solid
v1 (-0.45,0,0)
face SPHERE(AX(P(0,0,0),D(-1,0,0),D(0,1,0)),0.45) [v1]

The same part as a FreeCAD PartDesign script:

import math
import FreeCAD as App
import Part
import Sketcher

doc = App.newDocument("Part")
body = doc.addObject("PartDesign::Body", "Body")

sketch1 = body.newObject("Sketcher::SketchObject", "Sketch")
sketch1.AttachmentSupport = (doc.getObject("XY_Plane"), [""])
sketch1.MapMode = "FlatFace"
sketch1.addGeometry([
    Part.LineSegment(App.Vector(-0.45, 0, 0), App.Vector(0.45, 0, 0)),
    Part.ArcOfCircle(Part.Circle(App.Vector(0, 0, 0), App.Vector(0, 0, 1), 0.45), math.radians(0), math.radians(180)),
], False)
sketch1.addConstraint([
    Sketcher.Constraint("Coincident", 0, 1, 1, 2),
    Sketcher.Constraint("Coincident", 1, 1, 0, 2),
    Sketcher.Constraint("Horizontal", 0),
    Sketcher.Constraint("Coincident", 1, 3, -1, 1),
    Sketcher.Constraint("PointOnObject", 0, 1, -1),
    Sketcher.Constraint("Radius", 1, 0.45),
])
revolution = body.newObject("PartDesign::Revolution", "Revolution")
revolution.Profile = sketch1
revolution.ReferenceAxis = (sketch1, ["H_Axis"])
revolution.Angle = 360

doc.recompute()
